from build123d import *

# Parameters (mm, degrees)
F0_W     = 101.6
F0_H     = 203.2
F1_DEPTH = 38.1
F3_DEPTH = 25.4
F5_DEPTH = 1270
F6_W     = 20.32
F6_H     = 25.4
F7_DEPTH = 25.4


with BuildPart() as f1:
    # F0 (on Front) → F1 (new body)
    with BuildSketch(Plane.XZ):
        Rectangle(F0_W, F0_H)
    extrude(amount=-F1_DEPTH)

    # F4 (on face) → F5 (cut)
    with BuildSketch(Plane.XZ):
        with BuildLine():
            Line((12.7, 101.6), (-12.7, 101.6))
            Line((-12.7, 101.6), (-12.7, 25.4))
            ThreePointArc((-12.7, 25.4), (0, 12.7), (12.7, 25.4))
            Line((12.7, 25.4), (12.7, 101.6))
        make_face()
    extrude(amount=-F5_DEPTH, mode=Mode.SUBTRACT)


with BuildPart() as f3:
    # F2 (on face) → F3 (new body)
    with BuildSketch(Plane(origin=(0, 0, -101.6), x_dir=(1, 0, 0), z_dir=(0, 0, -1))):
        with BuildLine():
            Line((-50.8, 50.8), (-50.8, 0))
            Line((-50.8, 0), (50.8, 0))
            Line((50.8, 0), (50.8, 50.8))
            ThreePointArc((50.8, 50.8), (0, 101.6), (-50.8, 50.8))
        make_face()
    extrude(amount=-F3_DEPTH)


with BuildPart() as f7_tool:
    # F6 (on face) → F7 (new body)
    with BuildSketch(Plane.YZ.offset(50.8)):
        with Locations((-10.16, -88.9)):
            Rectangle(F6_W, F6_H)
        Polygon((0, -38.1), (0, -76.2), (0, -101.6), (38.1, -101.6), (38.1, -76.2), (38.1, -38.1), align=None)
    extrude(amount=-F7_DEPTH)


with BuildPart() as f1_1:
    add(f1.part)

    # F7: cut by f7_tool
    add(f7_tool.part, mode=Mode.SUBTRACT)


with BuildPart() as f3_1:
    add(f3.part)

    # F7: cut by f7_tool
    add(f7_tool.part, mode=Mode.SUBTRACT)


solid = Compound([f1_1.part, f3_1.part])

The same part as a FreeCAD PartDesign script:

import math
import FreeCAD as App
import Part
import Sketcher
from FreeCAD import Vector
Q = App.Units.Quantity


def add_polygon(sketch, points):
    """Adds a closed chain of lines whose ends are joined by coincident constraints."""
    first, n = sketch.GeometryCount, len(points)
    for a, b in zip(points, points[1:] + points[:1]):
        sketch.addGeometry(Part.LineSegment(App.Vector(*a, 0), App.Vector(*b, 0)), False)
    for i in range(n):
        sketch.addConstraint(Sketcher.Constraint("Coincident", first + i, 2, first + (i + 1) % n, 1))

doc = App.newDocument("Part")
body = doc.addObject("PartDesign::Body", "Body")

sketch1 = body.newObject("Sketcher::SketchObject", "Sketch")
sketch1.AttachmentSupport = (doc.getObject("XZ_Plane"), [""])
sketch1.MapMode = "FlatFace"
add_polygon(sketch1, [(-50.8, 101.6), (-50.8, -101.6), (50.8, -101.6), (50.8, 101.6)])
sketch1.addConstraint([
    Sketcher.Constraint("Vertical", 0),
    Sketcher.Constraint("Horizontal", 1),
    Sketcher.Constraint("Vertical", 2),
    Sketcher.Constraint("Horizontal", 3),
    Sketcher.Constraint("Symmetric", 0, 2, 2, 2, -1, 1),
    Sketcher.Constraint("DistanceX", 1, 1, 1, 2, Q("4 in")),
    Sketcher.Constraint("DistanceY", 0, 2, 0, 1, Q("8 in")),
])
pad1 = body.newObject("PartDesign::Pad", "Pad")
pad1.Profile = sketch1
pad1.Length = Q("1.5 in")
pad1.Reversed = True

sketch2 = body.newObject("Sketcher::SketchObject", "Sketch001")
sketch2.AttachmentSupport = (doc.getObject("XZ_Plane"), [""])
sketch2.MapMode = "FlatFace"
sketch2.addGeometry([
    Part.LineSegment(Vector(12.7, 101.6, 0), Vector(-12.7, 101.6, 0)),
    Part.LineSegment(Vector(-12.7, 101.6, 0), Vector(-12.7, 25.4, 0)),
    Part.ArcOfCircle(Part.Circle(Vector(0, 25.4, 0), Vector(0, 0, 1), 12.7), math.radians(180), math.radians(360)),
    Part.LineSegment(Vector(12.7, 25.4, 0), Vector(12.7, 101.6, 0)),
], False)
sketch2.addConstraint([
    Sketcher.Constraint("Coincident", 0, 2, 1, 1),
    Sketcher.Constraint("Tangent", 1, 2, 2, 1),
    Sketcher.Constraint("Tangent", 2, 2, 3, 1),
    Sketcher.Constraint("Coincident", 3, 2, 0, 1),
    Sketcher.Constraint("Horizontal", 0),
    Sketcher.Constraint("Vertical", 1),
    Sketcher.Constraint("Vertical", 3),
    Sketcher.Constraint("PointOnObject", 2, 3, -2),
    Sketcher.Constraint("Radius", 2, Q("0.5 in")),
    Sketcher.Constraint("DistanceY", 1, 2, 1, 1, Q("3 in")),
    Sketcher.Constraint("DistanceY", -1, 1, 2, 3, Q("1 in")),
])
pocket1 = body.newObject("PartDesign::Pocket", "Pocket")
pocket1.Profile = sketch2
pocket1.Length = Q("50 in")
body2 = doc.addObject("PartDesign::Body", "Body001")

sketch3 = body2.newObject("Sketcher::SketchObject", "Sketch002")
sketch3.AttachmentSupport = (doc.getObject("XY_Plane001"), [""])
sketch3.MapMode = "FlatFace"
sketch3.AttachmentOffset = App.Placement(Vector(0, 0, -4 * 25.4), App.Rotation())
sketch3.addGeometry([
    Part.LineSegment(Vector(-50.8, -50.8, 0), Vector(-50.8, 0, 0)),
    Part.LineSegment(Vector(-50.8, 0, 0), Vector(50.8, 0, 0)),
    Part.LineSegment(Vector(50.8, 0, 0), Vector(50.8, -50.8, 0)),
    Part.ArcOfCircle(Part.Circle(Vector(0, -50.8, 0), Vector(0, 0, 1), 50.8), math.radians(180), math.radians(360)),
], False)
sketch3.addConstraint([
    Sketcher.Constraint("Coincident", 0, 2, 1, 1),
    Sketcher.Constraint("Coincident", 1, 2, 2, 1),
    Sketcher.Constraint("Tangent", 2, 2, 3, 2),
    Sketcher.Constraint("Tangent", 3, 1, 0, 1),
    Sketcher.Constraint("Vertical", 0),
    Sketcher.Constraint("Horizontal", 1),
    Sketcher.Constraint("Vertical", 2),
    Sketcher.Constraint("Symmetric", 0, 2, 1, 2, -1, 1),
    Sketcher.Constraint("Radius", 3, Q("2 in")),
    Sketcher.Constraint("DistanceY", 0, 1, 0, 2, Q("2 in")),
])
pad2 = body2.newObject("PartDesign::Pad", "Pad001")
pad2.Profile = sketch3
pad2.Length = Q("1 in")
body3 = doc.addObject("PartDesign::Body", "Body002")

sketch4 = body3.newObject("Sketcher::SketchObject", "Sketch003")
sketch4.AttachmentSupport = (doc.getObject("YZ_Plane002"), [""])
sketch4.MapMode = "FlatFace"
sketch4.AttachmentOffset = App.Placement(Vector(0, 0, 2 * 25.4), App.Rotation())
add_polygon(sketch4, [(-20.32, -76.2), (-20.32, -101.6), (38.1, -101.6), (38.1, -38.1), (0, -38.1), (0, -76.2)])
sketch4.addConstraint([
    Sketcher.Constraint("Vertical", 0),
    Sketcher.Constraint("Horizontal", 1),
    Sketcher.Constraint("Vertical", 2),
    Sketcher.Constraint("Horizontal", 3),
    Sketcher.Constraint("Vertical", 4),
    Sketcher.Constraint("Horizontal", 5),
    Sketcher.Constraint("PointOnObject", 3, 2, -2),
    Sketcher.Constraint("Equal", 3, 4),
    Sketcher.Constraint("DistanceY", 0, 2, 0, 1, Q("1 in")),
    Sketcher.Constraint("DistanceX", 1, 1, 1, 2, Q("2.3 in")),
    Sketcher.Constraint("DistanceX", 3, 2, 3, 1, Q("1.5 in")),
    Sketcher.Constraint("DistanceY", 0, 2, -1, 1, Q("4 in")),
])
pad3 = body3.newObject("PartDesign::Pad", "Pad002")
pad3.Profile = sketch4
pad3.Length = Q("1 in")
pad3.Reversed = True
doc.recompute()

body4 = doc.addObject("PartDesign::Body", "Body003")
body4.BaseFeature = body3
boolean = body.newObject("PartDesign::Boolean", "Boolean")
boolean.Type = "Cut"
boolean.addObjects([body4])
doc.recompute()

boolean2 = body2.newObject("PartDesign::Boolean", "Boolean001")
boolean2.Type = "Cut"
boolean2.addObjects([body3])

doc.recompute()
